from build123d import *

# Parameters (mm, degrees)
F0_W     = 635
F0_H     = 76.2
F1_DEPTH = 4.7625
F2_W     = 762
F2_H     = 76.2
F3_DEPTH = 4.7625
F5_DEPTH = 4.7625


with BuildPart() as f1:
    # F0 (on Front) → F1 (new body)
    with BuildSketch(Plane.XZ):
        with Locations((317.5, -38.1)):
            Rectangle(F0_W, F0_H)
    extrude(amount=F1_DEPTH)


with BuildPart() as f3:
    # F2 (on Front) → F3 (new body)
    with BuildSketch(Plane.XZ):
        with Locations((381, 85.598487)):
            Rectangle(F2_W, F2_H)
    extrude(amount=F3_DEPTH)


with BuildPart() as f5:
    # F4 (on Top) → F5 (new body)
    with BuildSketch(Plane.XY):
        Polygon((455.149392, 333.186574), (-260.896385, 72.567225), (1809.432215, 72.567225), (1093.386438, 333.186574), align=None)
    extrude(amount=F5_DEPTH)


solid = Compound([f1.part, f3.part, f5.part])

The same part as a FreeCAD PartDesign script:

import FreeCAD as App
import Part
import Sketcher
from FreeCAD import Vector
Q = App.Units.Quantity

doc = App.newDocument("Part")
body = doc.addObject("PartDesign::Body", "Body")

# Sketch on XZ plane
sketch1 = body.newObject("Sketcher::SketchObject", "Sketch")
sketch1.AttachmentSupport = (doc.getObject("XZ_Plane"), [""])
sketch1.MapMode = "FlatFace"
sketch1.addGeometry([
    Part.LineSegment(Vector(0, 0, 0), Vector(0, -76, 0)),
    Part.LineSegment(Vector(0, -76, 0), Vector(635, -76, 0)),
    Part.LineSegment(Vector(635, -76, 0), Vector(635, 0, 0)),
    Part.LineSegment(Vector(635, 0, 0), Vector(0, 0, 0)),
], False)
sketch1.addConstraint([
    Sketcher.Constraint("Coincident", 0, 2, 1, 1),
    Sketcher.Constraint("Coincident", 1, 2, 2, 1),
    Sketcher.Constraint("Coincident", 2, 2, 3, 1),
    Sketcher.Constraint("Coincident", 3, 2, 0, 1),
    Sketcher.Constraint("Vertical", 0),
    Sketcher.Constraint("Horizontal", 1),
    Sketcher.Constraint("Vertical", 2),
    Sketcher.Constraint("Horizontal", 3),
    Sketcher.Constraint("Coincident", 3, 2, -1, 1),
    Sketcher.Constraint("DistanceX", 1, 1, 1, 2, Q("25 in")),
    Sketcher.Constraint("DistanceY", 0, 2, 0, 1, Q("3 in")),
])
pad1 = body.newObject("PartDesign::Pad", "Pad")
pad1.Profile = sketch1
pad1.Length = Q("0.1875 in")
body2 = doc.addObject("PartDesign::Body", "Body001")

# Sketch on XZ plane
sketch2 = body2.newObject("Sketcher::SketchObject", "Sketch001")
sketch2.AttachmentSupport = (doc.getObject("XZ_Plane001"), [""])
sketch2.MapMode = "FlatFace"
sketch2.addGeometry([
    Part.LineSegment(Vector(0, 124, 0), Vector(0, 47, 0)),
    Part.LineSegment(Vector(0, 47, 0), Vector(762, 47, 0)),
    Part.LineSegment(Vector(762, 47, 0), Vector(762, 124, 0)),
    Part.LineSegment(Vector(762, 124, 0), Vector(0, 124, 0)),
], False)
sketch2.addConstraint([
    Sketcher.Constraint("Coincident", 0, 2, 1, 1),
    Sketcher.Constraint("Coincident", 1, 2, 2, 1),
    Sketcher.Constraint("Coincident", 2, 2, 3, 1),
    Sketcher.Constraint("Coincident", 3, 2, 0, 1),
    Sketcher.Constraint("Vertical", 0),
    Sketcher.Constraint("Horizontal", 1),
    Sketcher.Constraint("Vertical", 2),
    Sketcher.Constraint("Horizontal", 3),
    Sketcher.Constraint("PointOnObject", 0, 2, -2),
    Sketcher.Constraint("DistanceX", 1, 1, 1, 2, Q("30 in")),
    Sketcher.Constraint("DistanceY", 0, 2, 0, 1, Q("3 in")),
    Sketcher.Constraint("DistanceY", -1, 1, 0, 2, Q("47.498487 mm")),
])
pad2 = body2.newObject("PartDesign::Pad", "Pad001")
pad2.Profile = sketch2
pad2.Length = Q("0.1875 in")
body3 = doc.addObject("PartDesign::Body", "Body002")

# Sketch on XY plane
sketch3 = body3.newObject("Sketcher::SketchObject", "Sketch002")
sketch3.AttachmentSupport = (doc.getObject("XY_Plane002"), [""])
sketch3.MapMode = "FlatFace"
sketch3.addGeometry([
    Part.LineSegment(Vector(455, 333, 0), Vector(-261, 73, 0)),
    Part.LineSegment(Vector(-261, 73, 0), Vector(1809, 73, 0)),
    Part.LineSegment(Vector(1809, 73, 0), Vector(1093, 333, 0)),
    Part.LineSegment(Vector(1093, 333, 0), Vector(455, 333, 0)),
], False)
sketch3.addConstraint([
    Sketcher.Constraint("Coincident", 0, 2, 1, 1),
    Sketcher.Constraint("Coincident", 1, 2, 2, 1),
    Sketcher.Constraint("Coincident", 2, 2, 3, 1),
    Sketcher.Constraint("Coincident", 3, 2, 0, 1),
    Sketcher.Constraint("Horizontal", 1),
    Sketcher.Constraint("Horizontal", 3),
    Sketcher.Constraint("Equal", 0, 2),
    Sketcher.Constraint("Distance", 0, Q("30 in")),
    Sketcher.Constraint("Angle", 0, Q("-160 deg")),
    Sketcher.Constraint("DistanceX", 1, 1, 1, 2, Q("81.509 in")),
    Sketcher.Constraint("DistanceX", -1, 1, 2, 2, Q("1093.386438 mm")),
    Sketcher.Constraint("DistanceY", -1, 1, 0, 2, Q("72.567225 mm")),
])
pad3 = body3.newObject("PartDesign::Pad", "Pad002")
pad3.Profile = sketch3
pad3.Length = Q("0.1875 in")

doc.recompute()
